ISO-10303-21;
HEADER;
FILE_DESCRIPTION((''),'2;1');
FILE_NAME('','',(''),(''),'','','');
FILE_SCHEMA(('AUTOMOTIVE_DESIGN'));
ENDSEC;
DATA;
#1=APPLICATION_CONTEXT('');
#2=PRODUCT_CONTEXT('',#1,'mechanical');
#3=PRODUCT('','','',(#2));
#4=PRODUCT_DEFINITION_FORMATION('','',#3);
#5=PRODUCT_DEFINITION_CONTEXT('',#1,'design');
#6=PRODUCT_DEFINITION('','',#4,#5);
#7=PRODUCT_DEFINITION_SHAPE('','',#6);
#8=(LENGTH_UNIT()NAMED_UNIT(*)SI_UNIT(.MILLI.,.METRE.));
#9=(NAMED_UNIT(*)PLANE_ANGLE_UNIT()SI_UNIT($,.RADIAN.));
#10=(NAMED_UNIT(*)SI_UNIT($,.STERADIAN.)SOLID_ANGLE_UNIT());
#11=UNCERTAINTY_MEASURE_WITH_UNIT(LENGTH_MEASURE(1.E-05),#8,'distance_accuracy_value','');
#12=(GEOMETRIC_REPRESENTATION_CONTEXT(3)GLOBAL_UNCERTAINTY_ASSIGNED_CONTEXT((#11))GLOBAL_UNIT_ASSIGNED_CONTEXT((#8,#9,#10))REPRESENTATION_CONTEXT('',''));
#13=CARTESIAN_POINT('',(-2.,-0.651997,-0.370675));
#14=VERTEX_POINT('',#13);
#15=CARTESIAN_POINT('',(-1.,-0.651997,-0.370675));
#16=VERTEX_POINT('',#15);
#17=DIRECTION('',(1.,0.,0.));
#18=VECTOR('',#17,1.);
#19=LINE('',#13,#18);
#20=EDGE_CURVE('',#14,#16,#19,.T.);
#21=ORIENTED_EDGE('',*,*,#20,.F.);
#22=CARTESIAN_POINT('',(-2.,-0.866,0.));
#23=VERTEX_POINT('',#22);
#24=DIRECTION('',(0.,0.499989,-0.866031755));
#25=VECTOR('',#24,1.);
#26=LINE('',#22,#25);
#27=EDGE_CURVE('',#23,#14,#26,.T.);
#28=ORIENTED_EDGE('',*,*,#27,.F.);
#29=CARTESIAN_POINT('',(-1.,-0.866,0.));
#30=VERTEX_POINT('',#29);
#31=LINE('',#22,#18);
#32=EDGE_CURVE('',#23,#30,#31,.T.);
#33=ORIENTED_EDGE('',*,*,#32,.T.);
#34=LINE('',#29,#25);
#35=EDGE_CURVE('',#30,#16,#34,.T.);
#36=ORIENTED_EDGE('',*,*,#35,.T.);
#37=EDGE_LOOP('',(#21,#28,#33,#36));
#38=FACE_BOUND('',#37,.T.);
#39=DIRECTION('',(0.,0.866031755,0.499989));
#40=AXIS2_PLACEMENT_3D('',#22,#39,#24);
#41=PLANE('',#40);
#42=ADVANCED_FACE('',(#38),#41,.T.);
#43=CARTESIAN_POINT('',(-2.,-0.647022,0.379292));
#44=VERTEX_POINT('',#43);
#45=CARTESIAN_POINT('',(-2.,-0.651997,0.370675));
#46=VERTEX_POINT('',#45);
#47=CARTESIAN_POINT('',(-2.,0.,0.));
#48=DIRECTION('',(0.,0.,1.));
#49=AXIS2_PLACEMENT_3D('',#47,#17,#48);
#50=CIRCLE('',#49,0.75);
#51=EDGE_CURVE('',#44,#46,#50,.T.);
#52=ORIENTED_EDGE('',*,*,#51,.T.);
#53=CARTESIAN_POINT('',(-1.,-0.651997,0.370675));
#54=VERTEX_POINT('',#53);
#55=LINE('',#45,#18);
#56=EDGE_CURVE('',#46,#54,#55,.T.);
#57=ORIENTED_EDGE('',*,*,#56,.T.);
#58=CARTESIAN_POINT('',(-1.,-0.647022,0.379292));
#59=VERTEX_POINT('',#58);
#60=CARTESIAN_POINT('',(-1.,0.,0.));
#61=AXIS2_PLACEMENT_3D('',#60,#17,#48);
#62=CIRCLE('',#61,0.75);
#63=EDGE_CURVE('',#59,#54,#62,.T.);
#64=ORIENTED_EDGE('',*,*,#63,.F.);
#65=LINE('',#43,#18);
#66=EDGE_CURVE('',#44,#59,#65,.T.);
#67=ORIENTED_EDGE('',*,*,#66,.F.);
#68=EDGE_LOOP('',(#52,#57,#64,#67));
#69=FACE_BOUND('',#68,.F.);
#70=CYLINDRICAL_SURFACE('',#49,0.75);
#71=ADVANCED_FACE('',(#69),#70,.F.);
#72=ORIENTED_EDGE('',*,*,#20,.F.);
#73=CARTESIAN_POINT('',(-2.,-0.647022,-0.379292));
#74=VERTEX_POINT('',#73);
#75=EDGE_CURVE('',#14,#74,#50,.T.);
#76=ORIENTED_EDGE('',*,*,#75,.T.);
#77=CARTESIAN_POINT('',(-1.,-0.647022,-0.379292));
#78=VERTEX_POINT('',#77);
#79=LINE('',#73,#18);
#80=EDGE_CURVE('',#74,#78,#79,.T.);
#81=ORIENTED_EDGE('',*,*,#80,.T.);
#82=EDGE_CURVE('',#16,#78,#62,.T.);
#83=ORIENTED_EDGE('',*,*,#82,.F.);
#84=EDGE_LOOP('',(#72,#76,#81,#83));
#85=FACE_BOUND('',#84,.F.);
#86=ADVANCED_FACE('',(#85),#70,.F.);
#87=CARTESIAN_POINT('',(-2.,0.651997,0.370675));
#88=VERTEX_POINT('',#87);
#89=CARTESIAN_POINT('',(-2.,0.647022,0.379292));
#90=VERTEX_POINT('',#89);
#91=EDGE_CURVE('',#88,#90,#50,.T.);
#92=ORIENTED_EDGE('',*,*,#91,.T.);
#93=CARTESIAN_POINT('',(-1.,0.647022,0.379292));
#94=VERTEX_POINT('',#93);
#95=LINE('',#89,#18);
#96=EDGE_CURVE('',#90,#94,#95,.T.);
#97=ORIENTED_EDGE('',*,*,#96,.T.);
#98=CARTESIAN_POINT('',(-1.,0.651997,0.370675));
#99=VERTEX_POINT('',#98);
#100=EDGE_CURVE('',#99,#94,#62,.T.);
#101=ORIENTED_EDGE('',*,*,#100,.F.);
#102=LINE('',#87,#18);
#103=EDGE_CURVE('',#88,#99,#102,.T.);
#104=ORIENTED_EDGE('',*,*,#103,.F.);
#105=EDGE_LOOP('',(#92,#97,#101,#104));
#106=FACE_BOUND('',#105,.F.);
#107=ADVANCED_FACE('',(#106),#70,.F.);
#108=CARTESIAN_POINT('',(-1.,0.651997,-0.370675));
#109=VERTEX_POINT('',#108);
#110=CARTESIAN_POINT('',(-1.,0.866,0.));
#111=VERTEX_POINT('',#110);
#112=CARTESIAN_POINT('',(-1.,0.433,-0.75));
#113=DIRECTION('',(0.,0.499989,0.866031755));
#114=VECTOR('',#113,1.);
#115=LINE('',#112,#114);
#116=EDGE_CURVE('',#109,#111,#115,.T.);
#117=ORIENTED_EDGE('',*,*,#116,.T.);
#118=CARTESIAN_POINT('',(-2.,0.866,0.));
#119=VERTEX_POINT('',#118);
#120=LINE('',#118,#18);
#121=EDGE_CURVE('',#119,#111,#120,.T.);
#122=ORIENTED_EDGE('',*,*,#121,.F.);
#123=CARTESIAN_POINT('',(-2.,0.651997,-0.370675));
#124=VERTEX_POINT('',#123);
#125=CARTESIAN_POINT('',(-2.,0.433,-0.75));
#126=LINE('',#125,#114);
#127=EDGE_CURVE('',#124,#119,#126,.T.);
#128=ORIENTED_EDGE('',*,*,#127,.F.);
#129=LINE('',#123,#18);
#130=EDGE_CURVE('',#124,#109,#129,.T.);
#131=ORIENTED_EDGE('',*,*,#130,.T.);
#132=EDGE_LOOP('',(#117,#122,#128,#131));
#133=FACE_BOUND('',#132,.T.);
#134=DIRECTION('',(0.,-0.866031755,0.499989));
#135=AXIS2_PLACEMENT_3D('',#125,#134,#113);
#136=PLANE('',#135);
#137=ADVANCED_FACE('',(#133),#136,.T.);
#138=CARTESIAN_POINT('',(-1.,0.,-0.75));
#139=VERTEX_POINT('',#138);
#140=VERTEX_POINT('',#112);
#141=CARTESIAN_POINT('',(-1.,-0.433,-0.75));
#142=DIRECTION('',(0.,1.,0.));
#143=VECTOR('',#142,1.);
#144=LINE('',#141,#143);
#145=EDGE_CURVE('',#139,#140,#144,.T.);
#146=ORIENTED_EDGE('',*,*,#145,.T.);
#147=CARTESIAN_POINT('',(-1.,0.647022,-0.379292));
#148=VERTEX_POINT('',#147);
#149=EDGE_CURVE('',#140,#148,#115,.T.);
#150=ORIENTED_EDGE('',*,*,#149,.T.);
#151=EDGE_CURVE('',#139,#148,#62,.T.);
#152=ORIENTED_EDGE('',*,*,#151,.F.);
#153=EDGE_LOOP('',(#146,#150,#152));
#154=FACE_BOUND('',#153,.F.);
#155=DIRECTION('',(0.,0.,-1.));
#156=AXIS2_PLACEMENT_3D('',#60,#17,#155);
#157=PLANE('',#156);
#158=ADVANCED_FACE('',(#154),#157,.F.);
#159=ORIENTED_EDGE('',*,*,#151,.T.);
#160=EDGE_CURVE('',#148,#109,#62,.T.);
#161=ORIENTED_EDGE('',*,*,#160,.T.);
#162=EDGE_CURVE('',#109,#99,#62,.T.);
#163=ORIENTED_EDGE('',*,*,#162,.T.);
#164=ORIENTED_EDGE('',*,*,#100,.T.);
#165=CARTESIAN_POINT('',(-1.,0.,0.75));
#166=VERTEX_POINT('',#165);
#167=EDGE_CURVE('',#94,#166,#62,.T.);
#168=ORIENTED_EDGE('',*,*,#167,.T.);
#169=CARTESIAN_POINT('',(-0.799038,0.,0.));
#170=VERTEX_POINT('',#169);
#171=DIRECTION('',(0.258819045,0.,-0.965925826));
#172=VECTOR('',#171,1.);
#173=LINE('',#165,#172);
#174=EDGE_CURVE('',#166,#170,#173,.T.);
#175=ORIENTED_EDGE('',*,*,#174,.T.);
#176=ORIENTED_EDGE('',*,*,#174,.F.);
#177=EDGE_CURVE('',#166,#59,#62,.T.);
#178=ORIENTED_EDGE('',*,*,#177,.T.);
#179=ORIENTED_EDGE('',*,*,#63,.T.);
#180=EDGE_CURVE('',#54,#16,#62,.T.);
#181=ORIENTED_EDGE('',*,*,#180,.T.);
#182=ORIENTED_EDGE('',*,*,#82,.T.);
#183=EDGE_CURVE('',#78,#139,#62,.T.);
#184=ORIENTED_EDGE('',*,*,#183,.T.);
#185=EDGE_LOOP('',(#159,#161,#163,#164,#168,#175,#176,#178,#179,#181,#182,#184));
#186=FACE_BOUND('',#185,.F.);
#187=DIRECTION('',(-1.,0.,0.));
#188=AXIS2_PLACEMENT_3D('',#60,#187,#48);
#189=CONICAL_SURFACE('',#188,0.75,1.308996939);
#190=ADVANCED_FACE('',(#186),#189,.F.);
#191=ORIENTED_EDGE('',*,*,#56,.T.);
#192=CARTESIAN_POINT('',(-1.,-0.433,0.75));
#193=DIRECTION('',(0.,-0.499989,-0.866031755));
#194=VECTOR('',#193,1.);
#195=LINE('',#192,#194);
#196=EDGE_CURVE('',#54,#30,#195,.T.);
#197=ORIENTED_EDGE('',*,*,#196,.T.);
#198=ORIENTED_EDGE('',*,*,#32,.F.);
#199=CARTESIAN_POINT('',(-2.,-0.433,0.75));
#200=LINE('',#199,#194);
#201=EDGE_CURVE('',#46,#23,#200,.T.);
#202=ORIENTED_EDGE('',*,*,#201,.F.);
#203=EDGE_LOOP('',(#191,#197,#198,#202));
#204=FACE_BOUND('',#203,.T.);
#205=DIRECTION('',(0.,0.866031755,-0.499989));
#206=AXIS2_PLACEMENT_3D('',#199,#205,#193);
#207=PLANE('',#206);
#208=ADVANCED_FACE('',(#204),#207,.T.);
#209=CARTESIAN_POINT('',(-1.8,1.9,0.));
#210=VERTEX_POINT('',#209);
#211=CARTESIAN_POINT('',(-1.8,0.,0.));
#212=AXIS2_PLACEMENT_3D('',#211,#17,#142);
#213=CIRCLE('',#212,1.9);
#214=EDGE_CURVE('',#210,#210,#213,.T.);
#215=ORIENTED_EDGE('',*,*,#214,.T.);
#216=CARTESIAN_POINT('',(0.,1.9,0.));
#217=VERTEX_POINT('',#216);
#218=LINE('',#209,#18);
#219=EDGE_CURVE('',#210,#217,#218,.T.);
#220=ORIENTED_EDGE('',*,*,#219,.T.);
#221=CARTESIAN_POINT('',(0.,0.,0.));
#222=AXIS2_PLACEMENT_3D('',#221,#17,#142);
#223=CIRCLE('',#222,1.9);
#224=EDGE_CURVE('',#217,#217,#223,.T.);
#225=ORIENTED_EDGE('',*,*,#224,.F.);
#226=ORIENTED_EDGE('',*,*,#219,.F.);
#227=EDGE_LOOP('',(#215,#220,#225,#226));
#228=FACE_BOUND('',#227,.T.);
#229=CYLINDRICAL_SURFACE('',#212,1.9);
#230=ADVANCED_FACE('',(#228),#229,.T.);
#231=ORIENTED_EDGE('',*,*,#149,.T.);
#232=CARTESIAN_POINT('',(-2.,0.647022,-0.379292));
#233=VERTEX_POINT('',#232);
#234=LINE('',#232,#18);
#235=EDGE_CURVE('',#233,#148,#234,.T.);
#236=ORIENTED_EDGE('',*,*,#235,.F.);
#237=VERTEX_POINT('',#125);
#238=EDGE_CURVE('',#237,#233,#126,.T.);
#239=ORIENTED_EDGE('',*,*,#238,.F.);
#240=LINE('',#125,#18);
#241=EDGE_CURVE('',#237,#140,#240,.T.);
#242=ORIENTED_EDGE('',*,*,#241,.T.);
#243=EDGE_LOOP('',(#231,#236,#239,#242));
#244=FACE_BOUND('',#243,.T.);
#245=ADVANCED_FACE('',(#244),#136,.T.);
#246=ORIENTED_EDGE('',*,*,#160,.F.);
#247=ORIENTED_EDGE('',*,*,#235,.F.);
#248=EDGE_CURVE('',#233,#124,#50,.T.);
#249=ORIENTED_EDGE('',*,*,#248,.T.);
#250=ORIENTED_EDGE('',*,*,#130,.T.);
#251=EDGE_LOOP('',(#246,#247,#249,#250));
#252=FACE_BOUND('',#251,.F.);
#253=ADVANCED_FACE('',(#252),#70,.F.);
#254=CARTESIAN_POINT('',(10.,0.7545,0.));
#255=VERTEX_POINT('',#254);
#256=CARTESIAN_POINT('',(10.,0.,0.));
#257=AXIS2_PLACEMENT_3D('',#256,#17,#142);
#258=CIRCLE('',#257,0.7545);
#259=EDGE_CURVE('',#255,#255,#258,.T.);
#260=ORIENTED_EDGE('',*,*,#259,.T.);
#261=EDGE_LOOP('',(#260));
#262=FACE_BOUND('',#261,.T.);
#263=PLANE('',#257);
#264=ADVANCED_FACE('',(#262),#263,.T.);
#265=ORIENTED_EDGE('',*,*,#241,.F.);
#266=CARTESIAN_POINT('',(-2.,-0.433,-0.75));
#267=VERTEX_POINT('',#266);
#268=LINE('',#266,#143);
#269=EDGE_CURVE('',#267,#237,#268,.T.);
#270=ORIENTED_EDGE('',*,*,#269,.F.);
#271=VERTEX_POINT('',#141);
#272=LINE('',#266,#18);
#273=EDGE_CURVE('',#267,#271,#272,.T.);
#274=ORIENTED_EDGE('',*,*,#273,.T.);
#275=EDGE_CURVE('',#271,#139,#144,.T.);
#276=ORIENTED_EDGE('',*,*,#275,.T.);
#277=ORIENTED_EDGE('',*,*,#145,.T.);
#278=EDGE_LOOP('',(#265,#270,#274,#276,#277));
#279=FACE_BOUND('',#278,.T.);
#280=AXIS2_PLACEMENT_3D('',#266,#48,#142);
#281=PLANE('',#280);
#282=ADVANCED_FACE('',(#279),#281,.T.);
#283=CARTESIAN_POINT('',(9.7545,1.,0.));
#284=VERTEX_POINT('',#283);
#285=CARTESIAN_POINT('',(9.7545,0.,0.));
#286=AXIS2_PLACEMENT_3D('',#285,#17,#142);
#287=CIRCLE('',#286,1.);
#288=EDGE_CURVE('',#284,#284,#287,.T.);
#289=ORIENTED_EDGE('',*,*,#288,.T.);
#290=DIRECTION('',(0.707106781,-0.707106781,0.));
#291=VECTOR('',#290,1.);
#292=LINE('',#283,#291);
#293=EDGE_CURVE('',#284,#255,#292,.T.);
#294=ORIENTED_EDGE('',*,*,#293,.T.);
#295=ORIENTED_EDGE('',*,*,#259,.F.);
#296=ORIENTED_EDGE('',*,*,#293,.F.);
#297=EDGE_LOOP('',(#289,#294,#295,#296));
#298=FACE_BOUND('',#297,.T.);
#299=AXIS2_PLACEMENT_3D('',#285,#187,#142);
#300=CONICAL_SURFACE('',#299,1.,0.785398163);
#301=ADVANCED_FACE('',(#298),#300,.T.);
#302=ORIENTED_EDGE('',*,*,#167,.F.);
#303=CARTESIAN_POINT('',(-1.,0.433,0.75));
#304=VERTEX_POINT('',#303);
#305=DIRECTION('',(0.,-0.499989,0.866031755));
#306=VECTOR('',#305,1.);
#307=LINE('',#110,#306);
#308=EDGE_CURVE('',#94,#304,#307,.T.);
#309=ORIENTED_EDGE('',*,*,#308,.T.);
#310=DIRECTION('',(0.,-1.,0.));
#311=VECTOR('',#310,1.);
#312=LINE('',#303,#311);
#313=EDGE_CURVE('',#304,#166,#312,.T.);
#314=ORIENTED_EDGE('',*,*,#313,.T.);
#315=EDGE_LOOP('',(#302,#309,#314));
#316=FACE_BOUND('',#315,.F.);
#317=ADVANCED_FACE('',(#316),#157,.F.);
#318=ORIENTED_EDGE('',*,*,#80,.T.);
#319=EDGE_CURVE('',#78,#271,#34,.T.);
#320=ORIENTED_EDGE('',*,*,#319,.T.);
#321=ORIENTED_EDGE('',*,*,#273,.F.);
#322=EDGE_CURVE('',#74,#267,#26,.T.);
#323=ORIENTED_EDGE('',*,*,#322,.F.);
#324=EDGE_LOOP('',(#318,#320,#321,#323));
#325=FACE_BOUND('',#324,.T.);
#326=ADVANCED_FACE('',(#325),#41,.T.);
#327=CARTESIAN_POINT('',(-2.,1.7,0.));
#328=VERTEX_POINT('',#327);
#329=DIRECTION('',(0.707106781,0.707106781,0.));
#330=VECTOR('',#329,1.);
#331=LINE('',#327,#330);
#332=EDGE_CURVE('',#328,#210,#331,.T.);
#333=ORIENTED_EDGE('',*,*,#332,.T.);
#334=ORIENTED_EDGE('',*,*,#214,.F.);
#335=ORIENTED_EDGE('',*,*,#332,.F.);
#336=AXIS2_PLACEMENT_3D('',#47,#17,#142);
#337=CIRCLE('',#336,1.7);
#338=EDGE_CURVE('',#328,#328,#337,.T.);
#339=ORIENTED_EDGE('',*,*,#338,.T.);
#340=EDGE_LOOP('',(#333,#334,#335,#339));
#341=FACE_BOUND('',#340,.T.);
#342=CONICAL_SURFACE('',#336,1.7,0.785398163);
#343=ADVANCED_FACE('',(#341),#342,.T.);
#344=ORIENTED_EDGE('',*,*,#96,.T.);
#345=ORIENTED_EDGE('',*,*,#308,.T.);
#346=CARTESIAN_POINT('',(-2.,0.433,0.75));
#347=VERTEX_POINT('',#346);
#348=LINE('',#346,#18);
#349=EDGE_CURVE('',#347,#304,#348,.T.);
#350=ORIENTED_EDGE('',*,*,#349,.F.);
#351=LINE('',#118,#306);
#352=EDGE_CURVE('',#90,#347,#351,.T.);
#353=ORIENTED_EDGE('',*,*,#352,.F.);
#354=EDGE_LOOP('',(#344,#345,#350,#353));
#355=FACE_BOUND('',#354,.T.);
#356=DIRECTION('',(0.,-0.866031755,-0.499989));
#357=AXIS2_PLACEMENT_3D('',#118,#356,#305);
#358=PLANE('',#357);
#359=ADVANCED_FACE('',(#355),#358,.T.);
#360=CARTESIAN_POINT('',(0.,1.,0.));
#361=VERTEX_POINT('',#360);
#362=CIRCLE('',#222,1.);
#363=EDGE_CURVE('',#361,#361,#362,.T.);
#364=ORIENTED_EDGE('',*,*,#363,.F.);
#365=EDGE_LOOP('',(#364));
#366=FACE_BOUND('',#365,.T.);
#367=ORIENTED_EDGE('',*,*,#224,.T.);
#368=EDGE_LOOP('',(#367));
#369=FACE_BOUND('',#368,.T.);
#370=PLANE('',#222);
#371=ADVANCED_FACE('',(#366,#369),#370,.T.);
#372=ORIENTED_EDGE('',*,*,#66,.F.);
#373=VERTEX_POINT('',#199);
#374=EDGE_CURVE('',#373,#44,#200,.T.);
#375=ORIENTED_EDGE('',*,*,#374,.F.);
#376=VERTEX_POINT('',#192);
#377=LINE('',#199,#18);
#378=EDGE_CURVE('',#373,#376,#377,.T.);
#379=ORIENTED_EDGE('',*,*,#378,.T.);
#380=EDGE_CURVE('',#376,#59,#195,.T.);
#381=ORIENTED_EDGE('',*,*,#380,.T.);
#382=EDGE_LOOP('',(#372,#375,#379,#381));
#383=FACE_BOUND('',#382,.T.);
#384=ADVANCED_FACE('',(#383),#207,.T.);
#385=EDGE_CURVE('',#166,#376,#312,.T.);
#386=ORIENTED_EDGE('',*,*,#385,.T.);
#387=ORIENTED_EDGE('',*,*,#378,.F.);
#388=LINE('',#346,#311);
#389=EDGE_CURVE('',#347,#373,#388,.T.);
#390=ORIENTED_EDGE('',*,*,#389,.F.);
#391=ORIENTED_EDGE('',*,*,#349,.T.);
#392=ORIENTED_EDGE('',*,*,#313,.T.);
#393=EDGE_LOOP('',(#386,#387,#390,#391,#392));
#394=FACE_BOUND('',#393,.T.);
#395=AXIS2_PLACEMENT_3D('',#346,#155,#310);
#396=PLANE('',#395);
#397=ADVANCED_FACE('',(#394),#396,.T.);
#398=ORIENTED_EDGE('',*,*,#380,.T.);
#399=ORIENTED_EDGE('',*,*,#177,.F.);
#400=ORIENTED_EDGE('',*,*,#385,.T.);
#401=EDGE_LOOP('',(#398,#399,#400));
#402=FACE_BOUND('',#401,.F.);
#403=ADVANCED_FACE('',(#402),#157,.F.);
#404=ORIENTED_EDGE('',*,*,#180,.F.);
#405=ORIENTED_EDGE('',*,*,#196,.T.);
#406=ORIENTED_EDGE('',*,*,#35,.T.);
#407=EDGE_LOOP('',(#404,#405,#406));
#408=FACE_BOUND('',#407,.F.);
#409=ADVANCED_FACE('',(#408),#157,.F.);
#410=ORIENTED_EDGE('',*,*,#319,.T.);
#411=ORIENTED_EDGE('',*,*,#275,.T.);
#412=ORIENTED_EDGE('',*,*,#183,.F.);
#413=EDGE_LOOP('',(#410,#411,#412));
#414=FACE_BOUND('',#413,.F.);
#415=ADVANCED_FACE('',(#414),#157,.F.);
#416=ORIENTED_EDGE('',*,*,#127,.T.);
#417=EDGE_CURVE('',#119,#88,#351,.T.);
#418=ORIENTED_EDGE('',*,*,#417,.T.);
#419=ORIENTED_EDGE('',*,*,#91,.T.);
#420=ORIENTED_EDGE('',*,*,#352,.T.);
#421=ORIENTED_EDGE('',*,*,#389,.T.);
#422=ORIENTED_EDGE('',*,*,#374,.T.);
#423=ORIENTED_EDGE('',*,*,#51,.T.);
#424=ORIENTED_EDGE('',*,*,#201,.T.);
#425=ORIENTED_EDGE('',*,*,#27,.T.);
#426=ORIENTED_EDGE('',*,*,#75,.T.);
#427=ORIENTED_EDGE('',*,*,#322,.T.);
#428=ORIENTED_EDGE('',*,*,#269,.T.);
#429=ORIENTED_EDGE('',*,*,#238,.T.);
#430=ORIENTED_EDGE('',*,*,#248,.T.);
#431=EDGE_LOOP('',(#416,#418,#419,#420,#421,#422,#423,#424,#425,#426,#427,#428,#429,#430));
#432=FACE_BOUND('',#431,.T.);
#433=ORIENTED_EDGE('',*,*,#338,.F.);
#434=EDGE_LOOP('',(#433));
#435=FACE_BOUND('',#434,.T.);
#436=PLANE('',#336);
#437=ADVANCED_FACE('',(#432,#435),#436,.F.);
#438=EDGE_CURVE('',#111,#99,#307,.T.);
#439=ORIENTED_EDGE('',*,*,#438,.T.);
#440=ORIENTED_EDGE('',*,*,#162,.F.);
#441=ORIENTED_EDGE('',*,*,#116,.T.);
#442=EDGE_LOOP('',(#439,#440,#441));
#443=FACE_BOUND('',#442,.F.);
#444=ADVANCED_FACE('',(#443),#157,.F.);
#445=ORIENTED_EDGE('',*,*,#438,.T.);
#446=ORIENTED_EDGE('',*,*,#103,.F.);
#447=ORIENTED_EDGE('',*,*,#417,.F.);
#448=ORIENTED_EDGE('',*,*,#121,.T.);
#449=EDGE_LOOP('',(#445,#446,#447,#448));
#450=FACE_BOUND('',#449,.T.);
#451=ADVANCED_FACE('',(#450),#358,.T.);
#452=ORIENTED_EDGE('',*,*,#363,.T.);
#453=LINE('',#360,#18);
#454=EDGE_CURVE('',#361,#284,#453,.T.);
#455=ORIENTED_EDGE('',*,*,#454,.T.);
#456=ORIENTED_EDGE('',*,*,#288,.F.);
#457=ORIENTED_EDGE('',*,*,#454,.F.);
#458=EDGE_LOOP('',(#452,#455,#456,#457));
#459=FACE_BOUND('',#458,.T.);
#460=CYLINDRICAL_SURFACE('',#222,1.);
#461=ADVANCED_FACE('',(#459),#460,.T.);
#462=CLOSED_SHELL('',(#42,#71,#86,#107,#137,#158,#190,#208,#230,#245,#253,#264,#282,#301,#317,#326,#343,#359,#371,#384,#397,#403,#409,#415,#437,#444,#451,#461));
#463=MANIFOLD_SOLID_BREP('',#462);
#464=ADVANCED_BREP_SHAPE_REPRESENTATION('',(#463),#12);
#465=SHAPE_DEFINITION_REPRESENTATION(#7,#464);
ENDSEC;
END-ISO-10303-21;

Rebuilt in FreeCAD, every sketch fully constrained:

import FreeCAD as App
import Part
import Sketcher
from FreeCAD import Vector
Q = App.Units.Quantity


def add_polygon(sketch, points):
    """Adds a closed chain of lines whose ends are joined by coincident constraints."""
    first, n = sketch.GeometryCount, len(points)
    for a, b in zip(points, points[1:] + points[:1]):
        sketch.addGeometry(Part.LineSegment(App.Vector(*a, 0), App.Vector(*b, 0)), False)
    for i in range(n):
        sketch.addConstraint(Sketcher.Constraint("Coincident", first + i, 2, first + (i + 1) % n, 1))

doc = App.newDocument("Part")
body = doc.addObject("PartDesign::Body", "Body")

sketch1 = doc.addObject("Sketcher::SketchObject", "Sketch")
body.addObject(sketch1)
sketch1.AttachmentSupport = (doc.XY_Plane, [""])
sketch1.MapMode = "FlatFace"
add_polygon(sketch1, [(-2, 0), (10, 0), (10, 0.75), (9.75, 1), (0, 1), (0, 1.9), (-1.8, 1.9), (-2, 1.7)])
sketch1.addConstraint([
    Sketcher.Constraint("Horizontal", 0),
    Sketcher.Constraint("Vertical", 1),
    Sketcher.Constraint("Horizontal", 3),
    Sketcher.Constraint("Vertical", 4),
    Sketcher.Constraint("Horizontal", 5),
    Sketcher.Constraint("Vertical", 7),
    Sketcher.Constraint("PointOnObject", 0, 2, -1),
    Sketcher.Constraint("PointOnObject", 3, 2, -2),
    Sketcher.Constraint("Perpendicular", 2, 6),
    Sketcher.Constraint("DistanceX", 0, 1, 0, 2, 12.0),
    Sketcher.Constraint("Angle", 2, Q("135 deg")),
    Sketcher.Constraint("DistanceX", 5, 2, 5, 1, 1.8),
    Sketcher.Constraint("DistanceY", 4, 1, 4, 2, 0.9),
    Sketcher.Constraint("DistanceY", 7, 2, 7, 1, 1.7),
    Sketcher.Constraint("DistanceX", -1, 1, 0, 2, 10.0),
    Sketcher.Constraint("DistanceX", 3, 2, 3, 1, 9.7545),
])
revolution = doc.addObject("PartDesign::Revolution", "Revolution")
body.addObject(revolution)
revolution.Profile = sketch1
revolution.ReferenceAxis = (sketch1, ["H_Axis"])
revolution.Angle = 360

sketch2 = doc.addObject("Sketcher::SketchObject", "Sketch001")
body.addObject(sketch2)
sketch2.AttachmentSupport = (doc.YZ_Plane, [""])
sketch2.MapMode = "FlatFace"
sketch2.AttachmentOffset = App.Placement(Vector(0, 0, -2), App.Rotation())
sketch2.addGeometry(Part.Circle(Vector(0, 0, 0), Vector(0, 0, 1), 0.8), False)
sketch2.addConstraint([
    Sketcher.Constraint("Coincident", 0, 3, -1, 1),
    Sketcher.Constraint("Diameter", 0, 1.5),
])
doc.recompute()
hole = doc.addObject("PartDesign::Hole", "Hole")
body.addObject(hole)
hole.Profile = sketch2
hole.ThreadType = "None"
hole.Diameter = 1.5
hole.DepthType = "Dimension"
hole.Depth = 1
hole.DrillPoint = "Angled"
hole.DrillPointAngle = 150
hole.Reversed = True

sketch3 = doc.addObject("Sketcher::SketchObject", "Sketch002")
body.addObject(sketch3)
sketch3.AttachmentSupport = (doc.YZ_Plane, [""])
sketch3.MapMode = "FlatFace"
sketch3.AttachmentOffset = App.Placement(Vector(0, 0, -2), App.Rotation())
add_polygon(sketch3, [(0.4, 0.8), (-0.4, 0.8), (-0.9, 0), (-0.4, -0.8), (0.4, -0.8), (0.9, 0)])
sketch3.addConstraint([
    Sketcher.Constraint("Horizontal", 0),
    Sketcher.Constraint("Horizontal", 3),
    Sketcher.Constraint("Symmetric", 0, 2, 3, 2, -1, 1),
    Sketcher.Constraint("Symmetric", 1, 2, 4, 2, -1, 1),
    Sketcher.Constraint("PointOnObject", 1, 2, -1),
    Sketcher.Constraint("Parallel", 2, 5),
    Sketcher.Constraint("Vertical", 0, 2, 2, 2),
    Sketcher.Constraint("Angle", 1, Q("-119.9993 deg")),
    Sketcher.Constraint("DistanceY", 2, 2, 0, 2, 1.5),
    Sketcher.Constraint("DistanceX", 0, 2, 0, 1, 0.866),
])
pocket1 = doc.addObject("PartDesign::Pocket", "Pocket")
body.addObject(pocket1)
pocket1.Profile = sketch3
pocket1.Length = 1
pocket1.Reversed = True

doc.recompute()
